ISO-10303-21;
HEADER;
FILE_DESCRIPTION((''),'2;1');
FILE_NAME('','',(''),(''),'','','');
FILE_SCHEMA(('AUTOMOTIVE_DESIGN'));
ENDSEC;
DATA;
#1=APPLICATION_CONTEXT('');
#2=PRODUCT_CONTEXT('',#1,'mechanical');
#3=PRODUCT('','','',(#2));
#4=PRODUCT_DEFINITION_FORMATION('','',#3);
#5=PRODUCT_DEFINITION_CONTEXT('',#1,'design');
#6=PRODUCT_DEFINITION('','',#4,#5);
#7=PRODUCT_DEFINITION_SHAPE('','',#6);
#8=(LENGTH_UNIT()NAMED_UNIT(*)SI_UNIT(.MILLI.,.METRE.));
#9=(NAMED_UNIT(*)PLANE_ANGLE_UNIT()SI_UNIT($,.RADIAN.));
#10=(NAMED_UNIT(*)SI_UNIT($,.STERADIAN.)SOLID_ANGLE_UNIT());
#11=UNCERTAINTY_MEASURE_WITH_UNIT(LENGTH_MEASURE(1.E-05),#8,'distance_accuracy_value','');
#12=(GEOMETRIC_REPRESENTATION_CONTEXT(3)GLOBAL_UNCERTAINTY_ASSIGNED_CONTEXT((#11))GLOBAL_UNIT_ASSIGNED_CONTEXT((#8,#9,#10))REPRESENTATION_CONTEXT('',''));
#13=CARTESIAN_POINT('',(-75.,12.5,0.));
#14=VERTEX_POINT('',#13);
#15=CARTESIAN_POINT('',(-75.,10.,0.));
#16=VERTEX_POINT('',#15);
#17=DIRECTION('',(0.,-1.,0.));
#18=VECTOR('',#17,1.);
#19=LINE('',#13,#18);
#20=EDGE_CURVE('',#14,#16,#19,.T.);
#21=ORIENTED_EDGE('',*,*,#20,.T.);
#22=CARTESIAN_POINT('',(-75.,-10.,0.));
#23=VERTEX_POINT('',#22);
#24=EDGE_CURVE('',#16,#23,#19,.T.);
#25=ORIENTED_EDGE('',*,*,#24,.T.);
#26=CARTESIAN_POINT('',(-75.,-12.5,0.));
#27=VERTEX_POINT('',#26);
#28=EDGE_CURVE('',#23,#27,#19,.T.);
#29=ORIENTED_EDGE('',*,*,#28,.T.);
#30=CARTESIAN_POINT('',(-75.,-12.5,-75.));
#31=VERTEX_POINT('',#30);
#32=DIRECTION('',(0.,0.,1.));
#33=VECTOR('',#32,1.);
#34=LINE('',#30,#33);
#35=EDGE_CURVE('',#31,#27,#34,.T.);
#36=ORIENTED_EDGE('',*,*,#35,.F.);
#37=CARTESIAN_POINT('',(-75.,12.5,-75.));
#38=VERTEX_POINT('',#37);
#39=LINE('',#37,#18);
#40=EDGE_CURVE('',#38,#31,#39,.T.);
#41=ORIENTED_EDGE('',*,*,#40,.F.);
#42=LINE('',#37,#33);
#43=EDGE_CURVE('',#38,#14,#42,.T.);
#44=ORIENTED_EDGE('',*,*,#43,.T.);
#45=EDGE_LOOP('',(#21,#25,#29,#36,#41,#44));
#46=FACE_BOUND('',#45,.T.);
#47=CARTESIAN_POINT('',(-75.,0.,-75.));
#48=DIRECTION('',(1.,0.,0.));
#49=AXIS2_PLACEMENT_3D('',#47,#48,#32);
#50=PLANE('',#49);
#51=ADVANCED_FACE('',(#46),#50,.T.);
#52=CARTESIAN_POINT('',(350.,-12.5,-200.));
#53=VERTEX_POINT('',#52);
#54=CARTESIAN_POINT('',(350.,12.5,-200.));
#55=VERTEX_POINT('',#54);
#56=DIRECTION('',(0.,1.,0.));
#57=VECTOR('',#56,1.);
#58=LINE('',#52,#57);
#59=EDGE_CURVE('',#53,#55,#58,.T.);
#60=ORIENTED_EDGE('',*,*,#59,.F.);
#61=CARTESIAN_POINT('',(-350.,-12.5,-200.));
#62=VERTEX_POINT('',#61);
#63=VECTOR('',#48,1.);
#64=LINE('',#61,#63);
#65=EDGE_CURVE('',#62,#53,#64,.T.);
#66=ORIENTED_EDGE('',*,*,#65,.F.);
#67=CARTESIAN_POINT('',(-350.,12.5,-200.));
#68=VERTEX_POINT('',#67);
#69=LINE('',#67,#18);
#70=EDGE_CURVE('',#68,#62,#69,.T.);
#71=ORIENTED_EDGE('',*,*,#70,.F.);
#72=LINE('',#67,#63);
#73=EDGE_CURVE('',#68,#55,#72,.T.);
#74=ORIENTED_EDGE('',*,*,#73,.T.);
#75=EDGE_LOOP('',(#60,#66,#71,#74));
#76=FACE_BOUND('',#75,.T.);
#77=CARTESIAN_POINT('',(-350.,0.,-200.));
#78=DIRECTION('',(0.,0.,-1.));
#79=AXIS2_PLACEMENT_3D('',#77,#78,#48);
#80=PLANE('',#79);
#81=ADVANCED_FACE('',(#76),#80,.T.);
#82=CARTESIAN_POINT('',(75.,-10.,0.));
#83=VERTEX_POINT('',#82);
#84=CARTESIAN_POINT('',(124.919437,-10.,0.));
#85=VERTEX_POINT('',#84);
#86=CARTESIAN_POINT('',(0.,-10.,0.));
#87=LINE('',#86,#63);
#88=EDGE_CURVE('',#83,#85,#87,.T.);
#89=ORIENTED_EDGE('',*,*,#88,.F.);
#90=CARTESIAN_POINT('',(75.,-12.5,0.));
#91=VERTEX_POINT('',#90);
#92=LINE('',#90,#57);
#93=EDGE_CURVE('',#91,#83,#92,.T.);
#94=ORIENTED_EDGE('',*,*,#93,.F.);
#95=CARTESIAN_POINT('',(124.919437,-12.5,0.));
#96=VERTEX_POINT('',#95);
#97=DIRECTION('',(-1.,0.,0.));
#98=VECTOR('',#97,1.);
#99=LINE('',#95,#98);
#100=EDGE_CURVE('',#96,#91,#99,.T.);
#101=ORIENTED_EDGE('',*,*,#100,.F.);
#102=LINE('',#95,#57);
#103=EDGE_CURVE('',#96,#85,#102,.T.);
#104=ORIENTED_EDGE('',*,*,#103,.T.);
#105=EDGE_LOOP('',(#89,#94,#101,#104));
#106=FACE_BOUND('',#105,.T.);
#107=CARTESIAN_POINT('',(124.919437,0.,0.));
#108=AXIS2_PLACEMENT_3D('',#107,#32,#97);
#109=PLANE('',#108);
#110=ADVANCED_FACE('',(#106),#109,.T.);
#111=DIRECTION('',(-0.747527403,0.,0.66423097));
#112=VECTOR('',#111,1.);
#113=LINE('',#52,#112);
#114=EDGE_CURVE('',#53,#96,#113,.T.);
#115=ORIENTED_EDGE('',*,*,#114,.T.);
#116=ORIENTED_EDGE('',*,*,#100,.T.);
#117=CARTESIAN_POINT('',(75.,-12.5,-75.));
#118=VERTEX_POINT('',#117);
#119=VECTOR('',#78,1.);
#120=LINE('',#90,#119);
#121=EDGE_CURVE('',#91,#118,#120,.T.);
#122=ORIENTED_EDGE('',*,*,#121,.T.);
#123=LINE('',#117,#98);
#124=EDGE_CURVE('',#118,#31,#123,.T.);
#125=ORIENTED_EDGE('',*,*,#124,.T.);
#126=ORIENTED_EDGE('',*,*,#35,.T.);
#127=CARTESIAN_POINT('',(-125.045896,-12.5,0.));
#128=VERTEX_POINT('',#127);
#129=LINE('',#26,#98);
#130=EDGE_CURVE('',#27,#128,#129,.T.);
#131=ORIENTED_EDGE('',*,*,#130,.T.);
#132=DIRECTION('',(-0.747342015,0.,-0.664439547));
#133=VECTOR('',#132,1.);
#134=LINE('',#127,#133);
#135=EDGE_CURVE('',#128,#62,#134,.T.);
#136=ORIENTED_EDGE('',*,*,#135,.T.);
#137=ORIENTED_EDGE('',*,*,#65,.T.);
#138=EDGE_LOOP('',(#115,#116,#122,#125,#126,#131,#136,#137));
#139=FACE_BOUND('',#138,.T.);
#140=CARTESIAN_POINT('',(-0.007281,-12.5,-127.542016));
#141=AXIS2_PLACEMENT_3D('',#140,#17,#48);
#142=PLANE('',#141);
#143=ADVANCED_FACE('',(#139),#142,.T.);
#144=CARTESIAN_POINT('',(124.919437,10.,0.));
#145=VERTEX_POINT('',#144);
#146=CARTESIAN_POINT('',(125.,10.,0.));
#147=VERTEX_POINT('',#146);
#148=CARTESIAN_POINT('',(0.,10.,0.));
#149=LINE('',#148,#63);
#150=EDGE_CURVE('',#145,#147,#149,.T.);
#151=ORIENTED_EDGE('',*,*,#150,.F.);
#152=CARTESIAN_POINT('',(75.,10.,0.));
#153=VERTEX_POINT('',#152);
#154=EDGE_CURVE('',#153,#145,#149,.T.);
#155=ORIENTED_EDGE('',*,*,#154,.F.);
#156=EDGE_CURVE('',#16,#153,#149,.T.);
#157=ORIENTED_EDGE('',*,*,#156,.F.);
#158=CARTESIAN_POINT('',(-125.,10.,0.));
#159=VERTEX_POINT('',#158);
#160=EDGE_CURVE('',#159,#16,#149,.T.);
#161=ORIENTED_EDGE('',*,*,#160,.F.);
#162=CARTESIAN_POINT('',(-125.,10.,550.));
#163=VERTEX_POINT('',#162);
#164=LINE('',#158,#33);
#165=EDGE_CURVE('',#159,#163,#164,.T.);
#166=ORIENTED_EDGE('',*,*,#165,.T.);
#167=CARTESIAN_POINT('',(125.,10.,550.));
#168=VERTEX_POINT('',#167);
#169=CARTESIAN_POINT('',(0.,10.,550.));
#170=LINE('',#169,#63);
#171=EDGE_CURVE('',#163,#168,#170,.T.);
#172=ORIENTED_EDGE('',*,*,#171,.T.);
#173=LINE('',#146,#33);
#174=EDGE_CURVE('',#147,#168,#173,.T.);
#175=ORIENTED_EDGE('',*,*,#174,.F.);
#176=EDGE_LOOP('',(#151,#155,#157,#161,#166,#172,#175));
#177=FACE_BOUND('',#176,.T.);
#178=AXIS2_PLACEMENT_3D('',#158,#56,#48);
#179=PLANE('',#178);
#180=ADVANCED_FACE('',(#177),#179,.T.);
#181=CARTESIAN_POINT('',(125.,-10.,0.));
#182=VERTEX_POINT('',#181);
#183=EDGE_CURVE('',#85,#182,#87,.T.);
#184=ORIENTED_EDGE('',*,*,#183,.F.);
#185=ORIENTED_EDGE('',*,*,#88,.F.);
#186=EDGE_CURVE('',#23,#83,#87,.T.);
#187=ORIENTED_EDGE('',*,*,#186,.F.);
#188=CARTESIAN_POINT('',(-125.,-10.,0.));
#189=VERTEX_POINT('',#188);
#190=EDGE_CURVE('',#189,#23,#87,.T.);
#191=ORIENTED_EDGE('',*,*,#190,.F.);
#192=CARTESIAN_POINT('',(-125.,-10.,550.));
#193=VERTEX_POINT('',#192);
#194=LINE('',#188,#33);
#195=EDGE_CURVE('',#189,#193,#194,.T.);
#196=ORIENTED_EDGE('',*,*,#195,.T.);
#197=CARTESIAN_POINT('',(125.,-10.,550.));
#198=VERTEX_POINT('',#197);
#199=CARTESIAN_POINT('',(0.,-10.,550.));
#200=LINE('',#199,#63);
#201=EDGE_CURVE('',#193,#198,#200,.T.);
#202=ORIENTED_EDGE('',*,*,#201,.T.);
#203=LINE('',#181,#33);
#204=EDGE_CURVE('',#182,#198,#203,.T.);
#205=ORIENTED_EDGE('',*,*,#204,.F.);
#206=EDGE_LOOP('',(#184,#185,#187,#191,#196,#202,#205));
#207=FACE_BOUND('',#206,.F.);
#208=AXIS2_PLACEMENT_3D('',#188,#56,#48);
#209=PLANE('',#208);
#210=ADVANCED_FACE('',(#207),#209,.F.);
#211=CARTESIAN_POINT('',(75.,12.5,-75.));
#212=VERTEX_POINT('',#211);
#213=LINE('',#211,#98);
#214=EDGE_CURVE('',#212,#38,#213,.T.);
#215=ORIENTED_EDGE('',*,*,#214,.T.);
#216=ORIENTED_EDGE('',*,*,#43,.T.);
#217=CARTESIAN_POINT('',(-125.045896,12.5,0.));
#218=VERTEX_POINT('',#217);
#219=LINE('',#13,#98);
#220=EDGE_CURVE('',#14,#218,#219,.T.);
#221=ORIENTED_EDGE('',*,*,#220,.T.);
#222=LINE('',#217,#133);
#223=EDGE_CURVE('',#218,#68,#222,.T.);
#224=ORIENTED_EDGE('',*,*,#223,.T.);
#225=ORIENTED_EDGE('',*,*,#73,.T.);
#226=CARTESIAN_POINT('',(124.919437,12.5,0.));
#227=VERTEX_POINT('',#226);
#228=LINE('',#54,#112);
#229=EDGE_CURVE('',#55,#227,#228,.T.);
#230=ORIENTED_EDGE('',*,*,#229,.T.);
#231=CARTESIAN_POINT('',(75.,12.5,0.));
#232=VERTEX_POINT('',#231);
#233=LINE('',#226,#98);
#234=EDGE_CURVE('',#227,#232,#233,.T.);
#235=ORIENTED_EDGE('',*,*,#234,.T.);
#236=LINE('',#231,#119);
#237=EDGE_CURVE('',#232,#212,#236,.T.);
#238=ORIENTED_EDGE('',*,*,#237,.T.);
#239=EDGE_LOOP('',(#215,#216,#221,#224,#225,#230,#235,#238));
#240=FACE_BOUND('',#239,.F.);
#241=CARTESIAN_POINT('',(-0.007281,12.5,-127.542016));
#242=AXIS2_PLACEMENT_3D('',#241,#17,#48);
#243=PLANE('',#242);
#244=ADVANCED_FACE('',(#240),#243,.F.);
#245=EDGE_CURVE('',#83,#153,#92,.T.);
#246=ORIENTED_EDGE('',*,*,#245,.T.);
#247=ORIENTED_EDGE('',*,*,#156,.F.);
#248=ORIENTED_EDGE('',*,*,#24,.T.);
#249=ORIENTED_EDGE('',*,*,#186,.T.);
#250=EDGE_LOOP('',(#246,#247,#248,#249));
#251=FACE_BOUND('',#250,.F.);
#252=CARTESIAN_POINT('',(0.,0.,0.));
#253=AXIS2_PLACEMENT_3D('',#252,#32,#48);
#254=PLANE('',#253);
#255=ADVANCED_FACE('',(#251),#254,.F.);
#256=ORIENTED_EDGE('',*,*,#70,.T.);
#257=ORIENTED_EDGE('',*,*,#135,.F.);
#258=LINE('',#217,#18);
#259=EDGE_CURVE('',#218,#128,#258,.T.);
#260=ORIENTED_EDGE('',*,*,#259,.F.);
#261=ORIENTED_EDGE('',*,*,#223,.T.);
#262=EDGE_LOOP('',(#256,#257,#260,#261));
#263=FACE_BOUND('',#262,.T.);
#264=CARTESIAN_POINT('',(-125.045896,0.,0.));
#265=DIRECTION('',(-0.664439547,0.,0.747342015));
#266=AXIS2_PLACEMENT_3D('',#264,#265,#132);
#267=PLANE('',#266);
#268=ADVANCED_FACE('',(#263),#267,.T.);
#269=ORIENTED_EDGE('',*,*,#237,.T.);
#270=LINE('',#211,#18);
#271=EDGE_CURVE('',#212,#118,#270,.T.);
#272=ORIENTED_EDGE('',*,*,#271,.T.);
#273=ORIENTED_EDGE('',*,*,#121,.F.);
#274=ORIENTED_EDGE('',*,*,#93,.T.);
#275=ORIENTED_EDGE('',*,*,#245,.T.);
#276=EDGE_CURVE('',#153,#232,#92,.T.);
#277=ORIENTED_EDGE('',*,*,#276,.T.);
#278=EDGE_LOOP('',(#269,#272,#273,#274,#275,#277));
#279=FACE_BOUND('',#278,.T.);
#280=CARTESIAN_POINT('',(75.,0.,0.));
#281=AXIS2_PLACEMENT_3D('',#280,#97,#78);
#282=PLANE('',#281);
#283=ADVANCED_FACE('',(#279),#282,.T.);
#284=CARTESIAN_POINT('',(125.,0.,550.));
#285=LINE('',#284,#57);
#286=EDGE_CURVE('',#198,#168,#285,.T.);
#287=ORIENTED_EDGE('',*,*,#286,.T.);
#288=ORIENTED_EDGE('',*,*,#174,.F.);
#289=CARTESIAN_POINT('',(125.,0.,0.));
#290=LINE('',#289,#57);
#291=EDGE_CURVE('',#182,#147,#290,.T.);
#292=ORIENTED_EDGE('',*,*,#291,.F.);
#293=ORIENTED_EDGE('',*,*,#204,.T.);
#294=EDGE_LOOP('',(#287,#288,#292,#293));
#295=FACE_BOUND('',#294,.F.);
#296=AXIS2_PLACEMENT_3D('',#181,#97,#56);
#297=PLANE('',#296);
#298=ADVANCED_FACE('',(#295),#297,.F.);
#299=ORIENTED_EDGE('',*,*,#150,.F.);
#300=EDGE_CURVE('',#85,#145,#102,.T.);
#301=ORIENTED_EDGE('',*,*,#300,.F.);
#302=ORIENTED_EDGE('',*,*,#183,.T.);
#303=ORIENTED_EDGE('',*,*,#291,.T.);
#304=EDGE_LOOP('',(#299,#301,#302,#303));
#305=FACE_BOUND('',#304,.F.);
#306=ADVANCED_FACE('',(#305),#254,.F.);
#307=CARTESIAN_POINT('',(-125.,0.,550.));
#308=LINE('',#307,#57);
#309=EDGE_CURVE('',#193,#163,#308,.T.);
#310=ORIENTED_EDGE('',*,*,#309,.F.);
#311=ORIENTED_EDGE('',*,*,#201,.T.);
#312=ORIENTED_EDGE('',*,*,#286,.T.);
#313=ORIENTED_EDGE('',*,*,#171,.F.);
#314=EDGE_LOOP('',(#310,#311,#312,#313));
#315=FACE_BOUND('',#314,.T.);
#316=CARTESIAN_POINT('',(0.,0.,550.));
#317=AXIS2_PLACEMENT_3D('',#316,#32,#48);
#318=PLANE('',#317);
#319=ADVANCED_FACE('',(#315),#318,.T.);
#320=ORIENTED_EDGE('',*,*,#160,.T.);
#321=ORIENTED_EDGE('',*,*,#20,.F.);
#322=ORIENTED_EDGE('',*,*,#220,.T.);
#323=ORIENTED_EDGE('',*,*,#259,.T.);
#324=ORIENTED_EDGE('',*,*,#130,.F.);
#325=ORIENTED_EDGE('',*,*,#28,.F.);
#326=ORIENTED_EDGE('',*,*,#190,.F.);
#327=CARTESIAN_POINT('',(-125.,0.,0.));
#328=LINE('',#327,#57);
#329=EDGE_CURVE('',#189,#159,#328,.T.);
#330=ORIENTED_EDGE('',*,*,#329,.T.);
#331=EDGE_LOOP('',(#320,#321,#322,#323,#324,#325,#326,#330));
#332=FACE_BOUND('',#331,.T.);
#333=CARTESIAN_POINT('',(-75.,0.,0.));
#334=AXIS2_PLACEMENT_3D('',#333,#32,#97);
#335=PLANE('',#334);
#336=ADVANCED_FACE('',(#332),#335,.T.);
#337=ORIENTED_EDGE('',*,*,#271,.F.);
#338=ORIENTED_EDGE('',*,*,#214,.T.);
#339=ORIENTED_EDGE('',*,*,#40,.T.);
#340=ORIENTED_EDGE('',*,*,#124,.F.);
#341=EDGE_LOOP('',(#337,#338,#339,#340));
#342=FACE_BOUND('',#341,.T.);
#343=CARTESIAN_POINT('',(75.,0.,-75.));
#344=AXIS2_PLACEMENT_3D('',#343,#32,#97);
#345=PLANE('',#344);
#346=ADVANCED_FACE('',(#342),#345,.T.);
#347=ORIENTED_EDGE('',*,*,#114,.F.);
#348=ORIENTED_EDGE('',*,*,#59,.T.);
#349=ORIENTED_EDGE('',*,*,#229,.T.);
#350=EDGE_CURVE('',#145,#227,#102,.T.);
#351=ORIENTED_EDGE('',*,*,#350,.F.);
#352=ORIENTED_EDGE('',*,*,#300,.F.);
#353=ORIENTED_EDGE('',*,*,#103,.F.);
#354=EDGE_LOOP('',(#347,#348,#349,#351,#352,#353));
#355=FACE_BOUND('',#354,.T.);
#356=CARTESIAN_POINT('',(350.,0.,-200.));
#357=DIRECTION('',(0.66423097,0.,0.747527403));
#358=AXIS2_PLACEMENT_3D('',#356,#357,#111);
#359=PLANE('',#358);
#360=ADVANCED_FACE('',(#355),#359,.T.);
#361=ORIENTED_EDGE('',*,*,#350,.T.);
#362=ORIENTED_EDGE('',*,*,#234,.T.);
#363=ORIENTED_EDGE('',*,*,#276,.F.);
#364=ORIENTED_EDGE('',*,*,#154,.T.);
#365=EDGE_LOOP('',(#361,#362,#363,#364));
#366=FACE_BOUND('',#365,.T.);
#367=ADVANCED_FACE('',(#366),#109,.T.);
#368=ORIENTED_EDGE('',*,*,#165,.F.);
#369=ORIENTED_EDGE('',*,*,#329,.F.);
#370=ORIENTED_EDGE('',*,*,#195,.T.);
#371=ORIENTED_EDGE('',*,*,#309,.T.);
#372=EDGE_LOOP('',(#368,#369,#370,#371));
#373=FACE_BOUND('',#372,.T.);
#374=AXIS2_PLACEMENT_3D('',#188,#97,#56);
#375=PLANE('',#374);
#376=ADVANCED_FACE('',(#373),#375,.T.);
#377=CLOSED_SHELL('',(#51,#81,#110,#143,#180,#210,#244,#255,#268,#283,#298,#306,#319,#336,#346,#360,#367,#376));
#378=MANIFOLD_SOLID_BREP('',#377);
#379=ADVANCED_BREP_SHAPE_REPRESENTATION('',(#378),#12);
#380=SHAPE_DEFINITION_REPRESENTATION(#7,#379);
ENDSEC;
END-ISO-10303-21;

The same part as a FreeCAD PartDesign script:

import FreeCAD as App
import Part
import Sketcher
from FreeCAD import Vector


def add_polygon(sketch, points):
    """Adds a closed chain of lines whose ends are joined by coincident constraints."""
    first, n = sketch.GeometryCount, len(points)
    for a, b in zip(points, points[1:] + points[:1]):
        sketch.addGeometry(Part.LineSegment(App.Vector(*a, 0), App.Vector(*b, 0)), False)
    for i in range(n):
        sketch.addConstraint(Sketcher.Constraint("Coincident", first + i, 2, first + (i + 1) % n, 1))

doc = App.newDocument("Part")
body = doc.addObject("PartDesign::Body", "Body")

sketch1 = body.newObject("Sketcher::SketchObject", "Sketch")
sketch1.AttachmentSupport = (doc.getObject("XY_Plane"), [""])
sketch1.MapMode = "FlatFace"
add_polygon(sketch1, [(-125, 10), (-125, -10), (125, -10), (125, 10)])
sketch1.addConstraint(Sketcher.Constraint("Vertical", 0))
sketch1.addConstraint(Sketcher.Constraint("Horizontal", 1))
sketch1.addConstraint(Sketcher.Constraint("Vertical", 2))
sketch1.addConstraint(Sketcher.Constraint("Horizontal", 3))
sketch1.addConstraint(Sketcher.Constraint("Symmetric", 0, 2, 2, 2, -1, 1))
sketch1.addConstraint(Sketcher.Constraint("DistanceX", 1, 1, 1, 2, 250.0))
sketch1.addConstraint(Sketcher.Constraint("DistanceY", 0, 2, 0, 1, 20.0))
pad1 = body.newObject("PartDesign::Pad", "Pad")
pad1.Profile = sketch1
pad1.Length = 550

sketch2 = body.newObject("Sketcher::SketchObject", "Sketch001")
sketch2.AttachmentSupport = (doc.getObject("XZ_Plane"), [""])
sketch2.MapMode = "FlatFace"
add_polygon(sketch2, [(75, 0), (75, -75), (-75, -75), (-75, 0), (-125, 0), (-350, -200), (350, -200), (125, 0)])
sketch2.addConstraint(Sketcher.Constraint("Vertical", 0))
sketch2.addConstraint(Sketcher.Constraint("Horizontal", 1))
sketch2.addConstraint(Sketcher.Constraint("Vertical", 2))
sketch2.addConstraint(Sketcher.Constraint("Horizontal", 3))
sketch2.addConstraint(Sketcher.Constraint("Horizontal", 5))
sketch2.addConstraint(Sketcher.Constraint("Horizontal", 7))
sketch2.addConstraint(Sketcher.Constraint("Symmetric", 2, 2, 7, 2, -1, 1))
sketch2.addConstraint(Sketcher.Constraint("PointOnObject", 2, 2, -1))
sketch2.addConstraint(Sketcher.Constraint("DistanceX", 1, 2, 1, 1, 150.0))
sketch2.addConstraint(Sketcher.Constraint("DistanceX", 5, 1, 5, 2, 700.0))
sketch2.addConstraint(Sketcher.Constraint("DistanceY", 0, 2, 0, 1, 75.0))
sketch2.addConstraint(Sketcher.Constraint("DistanceX", 4, 2, -1, 1, 350.0))
sketch2.addConstraint(Sketcher.Constraint("DistanceY", 4, 2, -1, 1, 200.0))
sketch2.addConstraint(Sketcher.Constraint("DistanceX", 3, 2, 3, 1, 50.045896))
sketch2.addConstraint(Sketcher.Constraint("DistanceX", 7, 2, 7, 1, 49.919437))
pad2 = body.newObject("PartDesign::Pad", "Pad001")
pad2.Profile = sketch2
pad2.Length = 25
pad2.Midplane = True

doc.recompute()
